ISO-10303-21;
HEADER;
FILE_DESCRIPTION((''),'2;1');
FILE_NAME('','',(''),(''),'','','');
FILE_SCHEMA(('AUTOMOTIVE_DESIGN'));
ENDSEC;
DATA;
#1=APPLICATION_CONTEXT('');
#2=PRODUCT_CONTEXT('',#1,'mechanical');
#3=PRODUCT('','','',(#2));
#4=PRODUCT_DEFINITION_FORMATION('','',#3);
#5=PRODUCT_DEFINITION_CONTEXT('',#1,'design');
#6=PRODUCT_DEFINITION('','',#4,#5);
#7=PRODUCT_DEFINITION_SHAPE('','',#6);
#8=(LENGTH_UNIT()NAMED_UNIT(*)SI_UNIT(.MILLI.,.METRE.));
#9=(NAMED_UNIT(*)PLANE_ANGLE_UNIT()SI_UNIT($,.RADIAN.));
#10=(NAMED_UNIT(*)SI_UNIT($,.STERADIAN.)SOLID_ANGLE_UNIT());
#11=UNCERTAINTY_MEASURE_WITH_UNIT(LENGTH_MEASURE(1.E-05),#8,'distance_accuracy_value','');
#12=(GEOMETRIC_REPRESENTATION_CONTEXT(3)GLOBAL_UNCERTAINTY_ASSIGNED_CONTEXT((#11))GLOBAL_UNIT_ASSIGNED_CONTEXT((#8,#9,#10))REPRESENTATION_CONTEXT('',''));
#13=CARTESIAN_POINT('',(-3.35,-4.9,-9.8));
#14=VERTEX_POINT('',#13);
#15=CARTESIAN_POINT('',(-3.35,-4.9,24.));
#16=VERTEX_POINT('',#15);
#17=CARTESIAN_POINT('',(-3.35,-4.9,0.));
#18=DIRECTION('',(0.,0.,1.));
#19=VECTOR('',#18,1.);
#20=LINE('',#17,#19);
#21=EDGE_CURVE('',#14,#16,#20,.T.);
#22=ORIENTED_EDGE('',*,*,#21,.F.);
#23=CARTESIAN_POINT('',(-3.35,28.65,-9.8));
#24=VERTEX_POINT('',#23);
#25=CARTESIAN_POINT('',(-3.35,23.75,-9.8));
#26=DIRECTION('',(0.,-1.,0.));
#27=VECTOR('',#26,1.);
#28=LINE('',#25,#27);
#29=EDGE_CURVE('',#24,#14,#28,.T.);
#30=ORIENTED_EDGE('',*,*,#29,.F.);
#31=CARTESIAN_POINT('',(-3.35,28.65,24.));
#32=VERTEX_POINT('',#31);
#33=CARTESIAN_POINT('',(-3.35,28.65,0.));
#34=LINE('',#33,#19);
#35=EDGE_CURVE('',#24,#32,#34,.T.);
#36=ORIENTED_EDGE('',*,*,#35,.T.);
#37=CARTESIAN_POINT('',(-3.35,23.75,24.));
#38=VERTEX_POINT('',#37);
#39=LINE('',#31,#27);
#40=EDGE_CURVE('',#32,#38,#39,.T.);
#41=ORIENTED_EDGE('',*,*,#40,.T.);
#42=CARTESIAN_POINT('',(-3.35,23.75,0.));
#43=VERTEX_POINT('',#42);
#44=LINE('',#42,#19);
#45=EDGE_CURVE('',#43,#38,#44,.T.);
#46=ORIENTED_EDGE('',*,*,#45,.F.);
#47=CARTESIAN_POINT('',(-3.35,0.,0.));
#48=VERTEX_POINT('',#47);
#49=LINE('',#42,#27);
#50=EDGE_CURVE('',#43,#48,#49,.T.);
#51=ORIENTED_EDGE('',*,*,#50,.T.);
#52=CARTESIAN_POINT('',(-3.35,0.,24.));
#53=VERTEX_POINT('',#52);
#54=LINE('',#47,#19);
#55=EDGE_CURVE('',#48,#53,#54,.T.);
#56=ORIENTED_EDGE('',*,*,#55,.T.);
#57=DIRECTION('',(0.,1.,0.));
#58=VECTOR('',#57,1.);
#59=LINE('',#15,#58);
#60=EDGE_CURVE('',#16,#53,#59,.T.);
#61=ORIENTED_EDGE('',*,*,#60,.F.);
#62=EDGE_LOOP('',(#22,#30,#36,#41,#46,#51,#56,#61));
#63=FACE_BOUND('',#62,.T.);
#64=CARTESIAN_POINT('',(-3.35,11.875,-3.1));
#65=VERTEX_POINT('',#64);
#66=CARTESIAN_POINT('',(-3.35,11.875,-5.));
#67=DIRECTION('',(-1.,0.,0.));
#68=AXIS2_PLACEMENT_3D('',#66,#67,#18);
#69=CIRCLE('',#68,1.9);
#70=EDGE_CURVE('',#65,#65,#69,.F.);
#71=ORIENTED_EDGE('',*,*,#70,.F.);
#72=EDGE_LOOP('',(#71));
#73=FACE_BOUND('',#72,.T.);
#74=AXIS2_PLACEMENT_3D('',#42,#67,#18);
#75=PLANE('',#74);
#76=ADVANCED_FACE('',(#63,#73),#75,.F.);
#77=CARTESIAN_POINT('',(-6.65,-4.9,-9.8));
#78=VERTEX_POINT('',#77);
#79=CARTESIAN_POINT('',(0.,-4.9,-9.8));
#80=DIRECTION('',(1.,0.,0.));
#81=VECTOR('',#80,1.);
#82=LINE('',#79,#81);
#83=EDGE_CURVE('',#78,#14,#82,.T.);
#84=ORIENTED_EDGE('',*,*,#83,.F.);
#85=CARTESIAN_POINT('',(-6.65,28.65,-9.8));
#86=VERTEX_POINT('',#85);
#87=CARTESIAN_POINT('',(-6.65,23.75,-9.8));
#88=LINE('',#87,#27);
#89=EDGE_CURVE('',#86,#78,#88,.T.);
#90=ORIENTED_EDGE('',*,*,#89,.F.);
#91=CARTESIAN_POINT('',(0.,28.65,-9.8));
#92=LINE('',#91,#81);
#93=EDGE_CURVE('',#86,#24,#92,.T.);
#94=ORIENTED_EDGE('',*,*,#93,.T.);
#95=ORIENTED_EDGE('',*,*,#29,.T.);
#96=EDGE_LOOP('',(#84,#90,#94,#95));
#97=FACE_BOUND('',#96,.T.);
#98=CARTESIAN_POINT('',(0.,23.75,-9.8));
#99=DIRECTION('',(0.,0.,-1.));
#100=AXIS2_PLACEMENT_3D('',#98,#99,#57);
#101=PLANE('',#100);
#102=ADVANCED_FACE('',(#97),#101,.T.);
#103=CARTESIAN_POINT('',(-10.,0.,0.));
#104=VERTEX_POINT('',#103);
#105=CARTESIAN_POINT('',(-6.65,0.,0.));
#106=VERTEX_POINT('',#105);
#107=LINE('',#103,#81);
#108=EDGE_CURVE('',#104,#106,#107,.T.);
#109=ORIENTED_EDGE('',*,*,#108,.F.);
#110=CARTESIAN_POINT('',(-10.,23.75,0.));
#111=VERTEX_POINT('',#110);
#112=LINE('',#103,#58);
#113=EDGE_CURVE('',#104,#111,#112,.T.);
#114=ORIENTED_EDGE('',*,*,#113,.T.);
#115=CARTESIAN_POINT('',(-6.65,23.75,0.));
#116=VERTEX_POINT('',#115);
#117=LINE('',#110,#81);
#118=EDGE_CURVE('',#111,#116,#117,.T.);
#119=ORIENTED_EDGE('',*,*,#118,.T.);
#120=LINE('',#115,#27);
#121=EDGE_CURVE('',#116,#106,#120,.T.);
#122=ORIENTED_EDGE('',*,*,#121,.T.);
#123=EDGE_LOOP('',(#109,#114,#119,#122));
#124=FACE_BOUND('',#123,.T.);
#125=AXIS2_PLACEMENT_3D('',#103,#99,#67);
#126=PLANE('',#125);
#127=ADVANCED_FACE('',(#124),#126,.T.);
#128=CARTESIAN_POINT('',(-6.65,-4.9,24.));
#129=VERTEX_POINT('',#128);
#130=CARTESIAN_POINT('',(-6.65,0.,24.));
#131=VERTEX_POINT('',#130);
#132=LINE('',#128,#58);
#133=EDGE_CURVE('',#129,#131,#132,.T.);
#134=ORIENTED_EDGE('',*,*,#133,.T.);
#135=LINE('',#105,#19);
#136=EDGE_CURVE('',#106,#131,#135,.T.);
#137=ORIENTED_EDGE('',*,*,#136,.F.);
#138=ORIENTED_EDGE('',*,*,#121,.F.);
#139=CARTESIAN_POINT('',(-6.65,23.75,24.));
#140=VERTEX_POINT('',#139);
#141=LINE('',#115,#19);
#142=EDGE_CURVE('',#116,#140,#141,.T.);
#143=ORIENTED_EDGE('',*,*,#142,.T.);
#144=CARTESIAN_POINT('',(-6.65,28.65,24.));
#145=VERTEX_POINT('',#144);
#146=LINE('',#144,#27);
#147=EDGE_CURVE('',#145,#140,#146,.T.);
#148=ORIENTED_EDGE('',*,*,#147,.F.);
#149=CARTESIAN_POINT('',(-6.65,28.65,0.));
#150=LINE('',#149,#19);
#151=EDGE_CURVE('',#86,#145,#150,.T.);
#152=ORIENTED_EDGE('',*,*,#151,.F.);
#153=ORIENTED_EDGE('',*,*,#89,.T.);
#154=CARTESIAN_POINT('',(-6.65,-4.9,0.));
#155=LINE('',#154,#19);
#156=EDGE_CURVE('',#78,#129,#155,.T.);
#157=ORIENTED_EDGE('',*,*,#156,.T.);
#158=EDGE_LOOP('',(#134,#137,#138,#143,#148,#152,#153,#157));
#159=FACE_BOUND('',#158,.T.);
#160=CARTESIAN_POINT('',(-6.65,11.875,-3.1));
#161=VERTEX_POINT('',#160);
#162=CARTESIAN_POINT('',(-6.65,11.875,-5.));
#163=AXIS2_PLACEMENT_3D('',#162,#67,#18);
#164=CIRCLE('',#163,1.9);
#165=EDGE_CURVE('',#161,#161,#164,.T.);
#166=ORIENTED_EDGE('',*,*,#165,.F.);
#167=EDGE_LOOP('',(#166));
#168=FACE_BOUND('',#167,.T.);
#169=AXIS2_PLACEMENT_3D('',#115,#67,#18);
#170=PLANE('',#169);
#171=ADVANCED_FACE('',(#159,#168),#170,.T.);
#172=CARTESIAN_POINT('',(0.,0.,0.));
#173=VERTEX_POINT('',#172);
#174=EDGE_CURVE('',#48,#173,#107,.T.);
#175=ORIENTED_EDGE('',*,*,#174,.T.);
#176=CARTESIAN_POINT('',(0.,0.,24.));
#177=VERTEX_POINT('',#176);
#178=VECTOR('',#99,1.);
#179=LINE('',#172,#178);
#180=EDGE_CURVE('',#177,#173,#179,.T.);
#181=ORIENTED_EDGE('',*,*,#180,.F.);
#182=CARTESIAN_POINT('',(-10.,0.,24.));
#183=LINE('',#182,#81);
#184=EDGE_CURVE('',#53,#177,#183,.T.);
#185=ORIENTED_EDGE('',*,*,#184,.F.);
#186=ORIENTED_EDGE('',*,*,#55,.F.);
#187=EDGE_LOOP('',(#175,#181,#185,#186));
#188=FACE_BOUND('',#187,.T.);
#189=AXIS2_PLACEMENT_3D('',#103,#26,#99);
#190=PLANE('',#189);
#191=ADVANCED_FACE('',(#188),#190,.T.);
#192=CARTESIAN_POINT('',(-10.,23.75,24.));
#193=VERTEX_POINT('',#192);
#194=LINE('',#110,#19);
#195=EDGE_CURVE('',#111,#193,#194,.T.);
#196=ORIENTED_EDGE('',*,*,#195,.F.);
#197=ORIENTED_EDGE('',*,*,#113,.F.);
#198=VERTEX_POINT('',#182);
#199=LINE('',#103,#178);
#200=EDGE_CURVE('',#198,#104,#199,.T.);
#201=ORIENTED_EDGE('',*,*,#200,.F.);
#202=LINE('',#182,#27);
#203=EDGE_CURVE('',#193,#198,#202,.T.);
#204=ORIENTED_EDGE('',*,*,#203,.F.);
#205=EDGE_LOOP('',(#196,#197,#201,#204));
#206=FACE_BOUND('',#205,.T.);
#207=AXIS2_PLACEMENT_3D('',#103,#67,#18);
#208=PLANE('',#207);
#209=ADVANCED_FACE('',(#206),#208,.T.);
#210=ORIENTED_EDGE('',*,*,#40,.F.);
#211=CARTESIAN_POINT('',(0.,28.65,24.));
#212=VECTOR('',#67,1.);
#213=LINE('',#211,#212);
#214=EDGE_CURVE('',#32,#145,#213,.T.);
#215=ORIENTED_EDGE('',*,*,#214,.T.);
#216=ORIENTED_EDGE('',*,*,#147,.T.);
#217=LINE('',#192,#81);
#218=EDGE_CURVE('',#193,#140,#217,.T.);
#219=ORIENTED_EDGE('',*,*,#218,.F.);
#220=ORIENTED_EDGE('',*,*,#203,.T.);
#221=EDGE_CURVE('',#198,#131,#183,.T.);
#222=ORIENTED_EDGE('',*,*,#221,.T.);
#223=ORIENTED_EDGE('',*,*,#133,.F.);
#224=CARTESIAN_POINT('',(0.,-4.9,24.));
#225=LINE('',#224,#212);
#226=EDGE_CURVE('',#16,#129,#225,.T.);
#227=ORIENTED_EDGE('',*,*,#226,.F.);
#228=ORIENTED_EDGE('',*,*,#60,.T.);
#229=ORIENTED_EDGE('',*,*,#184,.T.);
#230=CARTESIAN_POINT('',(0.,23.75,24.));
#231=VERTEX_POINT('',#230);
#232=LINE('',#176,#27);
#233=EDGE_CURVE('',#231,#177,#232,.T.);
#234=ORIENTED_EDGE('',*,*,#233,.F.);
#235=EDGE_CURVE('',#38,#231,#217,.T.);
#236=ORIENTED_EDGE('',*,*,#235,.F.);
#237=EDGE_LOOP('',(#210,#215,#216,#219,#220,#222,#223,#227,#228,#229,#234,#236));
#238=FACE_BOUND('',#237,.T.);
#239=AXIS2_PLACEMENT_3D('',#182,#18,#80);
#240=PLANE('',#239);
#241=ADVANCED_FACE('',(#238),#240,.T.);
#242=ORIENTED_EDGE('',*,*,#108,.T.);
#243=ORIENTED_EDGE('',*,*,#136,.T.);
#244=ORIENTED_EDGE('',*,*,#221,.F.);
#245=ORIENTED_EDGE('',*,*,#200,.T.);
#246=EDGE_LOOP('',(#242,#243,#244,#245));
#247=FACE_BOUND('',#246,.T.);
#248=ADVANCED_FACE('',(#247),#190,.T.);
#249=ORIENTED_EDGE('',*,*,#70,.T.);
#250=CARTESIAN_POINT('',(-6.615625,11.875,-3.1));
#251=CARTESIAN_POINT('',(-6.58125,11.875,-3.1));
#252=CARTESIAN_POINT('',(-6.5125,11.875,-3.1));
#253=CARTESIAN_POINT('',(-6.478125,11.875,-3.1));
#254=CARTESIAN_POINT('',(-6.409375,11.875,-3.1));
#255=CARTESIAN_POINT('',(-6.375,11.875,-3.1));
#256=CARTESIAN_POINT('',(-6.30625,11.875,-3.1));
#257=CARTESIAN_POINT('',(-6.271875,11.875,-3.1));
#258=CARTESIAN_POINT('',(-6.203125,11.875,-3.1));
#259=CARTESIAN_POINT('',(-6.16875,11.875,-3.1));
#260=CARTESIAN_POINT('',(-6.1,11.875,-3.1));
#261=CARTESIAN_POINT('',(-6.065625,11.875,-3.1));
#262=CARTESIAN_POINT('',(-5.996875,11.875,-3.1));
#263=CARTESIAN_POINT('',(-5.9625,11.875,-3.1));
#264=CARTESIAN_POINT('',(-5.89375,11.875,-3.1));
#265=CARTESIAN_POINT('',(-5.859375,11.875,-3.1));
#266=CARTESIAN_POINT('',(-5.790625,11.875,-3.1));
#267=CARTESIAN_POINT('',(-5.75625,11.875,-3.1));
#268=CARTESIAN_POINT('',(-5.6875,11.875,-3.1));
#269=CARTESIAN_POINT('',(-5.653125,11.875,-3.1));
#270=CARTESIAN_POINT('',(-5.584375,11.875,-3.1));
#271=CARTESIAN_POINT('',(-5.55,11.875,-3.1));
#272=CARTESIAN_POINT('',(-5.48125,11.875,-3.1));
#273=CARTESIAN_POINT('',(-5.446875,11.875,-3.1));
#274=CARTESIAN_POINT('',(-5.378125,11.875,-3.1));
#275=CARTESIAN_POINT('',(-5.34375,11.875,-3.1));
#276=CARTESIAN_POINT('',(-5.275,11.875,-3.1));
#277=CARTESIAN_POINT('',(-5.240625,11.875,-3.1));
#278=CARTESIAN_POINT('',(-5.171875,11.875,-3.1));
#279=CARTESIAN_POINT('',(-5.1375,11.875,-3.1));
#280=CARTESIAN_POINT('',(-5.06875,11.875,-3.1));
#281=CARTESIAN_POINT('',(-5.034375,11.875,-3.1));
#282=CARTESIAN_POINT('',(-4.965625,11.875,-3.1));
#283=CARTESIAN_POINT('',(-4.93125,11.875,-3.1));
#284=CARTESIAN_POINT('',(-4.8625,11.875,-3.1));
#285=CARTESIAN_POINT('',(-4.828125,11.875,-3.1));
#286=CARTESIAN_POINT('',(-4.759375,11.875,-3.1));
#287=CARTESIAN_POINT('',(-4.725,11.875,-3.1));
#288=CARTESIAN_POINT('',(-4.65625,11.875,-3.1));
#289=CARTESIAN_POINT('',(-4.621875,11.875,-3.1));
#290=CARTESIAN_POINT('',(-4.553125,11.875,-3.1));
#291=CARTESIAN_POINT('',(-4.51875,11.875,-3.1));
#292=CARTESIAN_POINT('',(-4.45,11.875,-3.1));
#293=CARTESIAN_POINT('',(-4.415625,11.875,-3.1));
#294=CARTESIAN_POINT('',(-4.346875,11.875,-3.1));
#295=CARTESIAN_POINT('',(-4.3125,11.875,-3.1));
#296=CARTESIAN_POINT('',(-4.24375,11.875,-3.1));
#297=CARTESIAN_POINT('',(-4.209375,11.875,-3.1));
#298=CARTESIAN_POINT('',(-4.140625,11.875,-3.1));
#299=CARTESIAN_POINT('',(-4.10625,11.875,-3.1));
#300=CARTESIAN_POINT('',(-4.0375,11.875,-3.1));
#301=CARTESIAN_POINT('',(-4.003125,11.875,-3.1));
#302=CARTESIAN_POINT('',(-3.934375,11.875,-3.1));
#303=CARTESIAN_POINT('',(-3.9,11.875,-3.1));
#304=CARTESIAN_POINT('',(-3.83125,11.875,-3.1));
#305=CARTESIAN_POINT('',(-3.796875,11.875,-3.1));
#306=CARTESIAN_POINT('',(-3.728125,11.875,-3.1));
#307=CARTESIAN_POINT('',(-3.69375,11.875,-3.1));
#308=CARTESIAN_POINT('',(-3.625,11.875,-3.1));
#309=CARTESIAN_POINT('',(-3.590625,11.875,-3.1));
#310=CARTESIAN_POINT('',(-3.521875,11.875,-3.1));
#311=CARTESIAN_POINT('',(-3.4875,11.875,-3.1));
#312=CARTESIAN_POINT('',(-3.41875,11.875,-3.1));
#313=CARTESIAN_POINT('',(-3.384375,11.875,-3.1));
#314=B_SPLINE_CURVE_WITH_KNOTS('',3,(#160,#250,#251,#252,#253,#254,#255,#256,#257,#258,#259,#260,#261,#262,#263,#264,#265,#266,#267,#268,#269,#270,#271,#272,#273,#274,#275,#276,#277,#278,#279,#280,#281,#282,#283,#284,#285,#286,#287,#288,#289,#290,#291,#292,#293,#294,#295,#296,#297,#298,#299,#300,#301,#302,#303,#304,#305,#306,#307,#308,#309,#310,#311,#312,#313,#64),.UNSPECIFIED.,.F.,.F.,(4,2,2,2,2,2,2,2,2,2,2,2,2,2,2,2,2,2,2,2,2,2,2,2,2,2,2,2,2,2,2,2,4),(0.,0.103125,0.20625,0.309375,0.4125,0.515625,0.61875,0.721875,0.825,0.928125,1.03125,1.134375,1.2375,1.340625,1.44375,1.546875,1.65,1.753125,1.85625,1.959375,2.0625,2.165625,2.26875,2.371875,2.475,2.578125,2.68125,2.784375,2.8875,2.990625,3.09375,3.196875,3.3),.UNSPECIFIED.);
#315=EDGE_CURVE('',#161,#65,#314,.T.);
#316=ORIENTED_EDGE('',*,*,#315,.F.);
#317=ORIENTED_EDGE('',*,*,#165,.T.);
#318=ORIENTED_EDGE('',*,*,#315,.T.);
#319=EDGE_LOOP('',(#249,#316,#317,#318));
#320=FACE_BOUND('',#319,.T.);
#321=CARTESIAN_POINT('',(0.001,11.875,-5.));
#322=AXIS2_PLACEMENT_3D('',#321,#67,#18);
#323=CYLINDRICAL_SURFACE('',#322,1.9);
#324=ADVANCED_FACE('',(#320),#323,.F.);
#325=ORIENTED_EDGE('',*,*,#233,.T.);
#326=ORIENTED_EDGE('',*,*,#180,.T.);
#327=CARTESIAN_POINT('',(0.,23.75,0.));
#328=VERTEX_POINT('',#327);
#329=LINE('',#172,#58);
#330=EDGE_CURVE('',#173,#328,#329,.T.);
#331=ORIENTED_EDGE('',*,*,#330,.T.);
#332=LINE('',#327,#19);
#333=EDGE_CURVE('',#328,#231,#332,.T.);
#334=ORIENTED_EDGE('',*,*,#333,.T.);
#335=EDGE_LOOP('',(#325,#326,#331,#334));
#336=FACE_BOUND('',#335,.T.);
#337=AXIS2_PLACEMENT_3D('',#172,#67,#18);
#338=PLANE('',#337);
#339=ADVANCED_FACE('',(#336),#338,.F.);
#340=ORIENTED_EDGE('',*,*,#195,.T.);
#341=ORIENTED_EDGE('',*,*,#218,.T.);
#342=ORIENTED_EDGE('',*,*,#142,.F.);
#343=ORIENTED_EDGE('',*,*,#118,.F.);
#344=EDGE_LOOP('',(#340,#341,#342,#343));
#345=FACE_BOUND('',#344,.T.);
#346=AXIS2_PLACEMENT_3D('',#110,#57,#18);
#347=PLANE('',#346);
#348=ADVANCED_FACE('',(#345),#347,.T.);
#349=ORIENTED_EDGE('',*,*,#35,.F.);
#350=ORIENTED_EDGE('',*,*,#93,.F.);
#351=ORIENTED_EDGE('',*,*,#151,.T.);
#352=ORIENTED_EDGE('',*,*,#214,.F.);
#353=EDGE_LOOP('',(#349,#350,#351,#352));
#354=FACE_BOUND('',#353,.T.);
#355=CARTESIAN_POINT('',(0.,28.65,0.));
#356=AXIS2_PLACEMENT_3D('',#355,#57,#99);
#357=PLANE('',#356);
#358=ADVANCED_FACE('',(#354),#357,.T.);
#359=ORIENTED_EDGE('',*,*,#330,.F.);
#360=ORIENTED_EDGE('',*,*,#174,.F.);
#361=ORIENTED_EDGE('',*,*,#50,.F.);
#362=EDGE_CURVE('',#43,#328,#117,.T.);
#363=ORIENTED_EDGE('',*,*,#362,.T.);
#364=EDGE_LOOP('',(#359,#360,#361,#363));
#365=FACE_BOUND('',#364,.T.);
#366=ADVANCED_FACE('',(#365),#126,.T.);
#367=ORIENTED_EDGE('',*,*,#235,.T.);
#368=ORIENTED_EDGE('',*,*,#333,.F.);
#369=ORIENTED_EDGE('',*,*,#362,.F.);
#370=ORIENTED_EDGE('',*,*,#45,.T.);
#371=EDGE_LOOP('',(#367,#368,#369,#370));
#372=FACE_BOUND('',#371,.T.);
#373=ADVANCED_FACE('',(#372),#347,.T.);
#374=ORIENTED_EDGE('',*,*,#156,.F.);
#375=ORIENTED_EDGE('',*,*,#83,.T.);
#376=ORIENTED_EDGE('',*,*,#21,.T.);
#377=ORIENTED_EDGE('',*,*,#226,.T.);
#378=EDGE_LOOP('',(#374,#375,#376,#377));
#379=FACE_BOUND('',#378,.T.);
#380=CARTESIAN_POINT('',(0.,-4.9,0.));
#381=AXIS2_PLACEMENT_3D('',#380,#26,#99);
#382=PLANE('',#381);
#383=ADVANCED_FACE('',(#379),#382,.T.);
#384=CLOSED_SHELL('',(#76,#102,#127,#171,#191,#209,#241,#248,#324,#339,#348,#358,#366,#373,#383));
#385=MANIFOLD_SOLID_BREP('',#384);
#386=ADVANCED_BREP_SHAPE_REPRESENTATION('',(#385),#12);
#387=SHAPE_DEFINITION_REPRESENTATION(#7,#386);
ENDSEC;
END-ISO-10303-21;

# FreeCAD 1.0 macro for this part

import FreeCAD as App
import Part
import Sketcher
Q = App.Units.Quantity

doc = App.newDocument("Part")
params = doc.addObject("Spreadsheet::Sheet", "Params")
for row, (alias, value) in enumerate([
    ("sketch1_height", "24 mm"),
    ("sketch1_width", "23.75 mm"),
    ("pad1_length", "10 mm"),
    ("sketch2_width", "3.3 mm"),
    ("sketch2_height", "9.8 mm"),
    ("pad2_length", "23.75 mm"),
    ("sketch3_width", "3.3 mm"),
    ("sketch3_height", "33.8 mm"),
    ("pad3_length", "4.9 mm"),
    ("sketch4_diameter", "3.8 mm"),
], start=1):
    params.set(f"A{row}", alias)
    params.set(f"B{row}", "=" + value)
    params.setAlias(f"B{row}", alias)

body = doc.addObject("PartDesign::Body", "Body")

# Sketch on YZ plane
sketch1 = body.newObject("Sketcher::SketchObject", "Sketch")
sketch1.AttachmentSupport = (doc.getObject("YZ_Plane"), [""])
sketch1.MapMode = "FlatFace"
sketch1.addGeometry([
    Part.LineSegment(App.Vector(0, 24, 0), App.Vector(0, 0, 0)),
    Part.LineSegment(App.Vector(0, 0, 0), App.Vector(24, 0, 0)),
    Part.LineSegment(App.Vector(24, 0, 0), App.Vector(24, 24, 0)),
    Part.LineSegment(App.Vector(24, 24, 0), App.Vector(0, 24, 0)),
], False)
sketch1.addConstraint([
    Sketcher.Constraint("Coincident", 0, 2, 1, 1),
    Sketcher.Constraint("Coincident", 1, 2, 2, 1),
    Sketcher.Constraint("Coincident", 2, 2, 3, 1),
    Sketcher.Constraint("Coincident", 3, 2, 0, 1),
    Sketcher.Constraint("Vertical", 0),
    Sketcher.Constraint("Horizontal", 1),
    Sketcher.Constraint("Vertical", 2),
    Sketcher.Constraint("Horizontal", 3),
    Sketcher.Constraint("Coincident", 0, 2, -1, 1),
    Sketcher.Constraint("DistanceY", 0, 2, 0, 1, Q("24 mm")),
    Sketcher.Constraint("DistanceX", 1, 1, 1, 2, Q("23.75 mm")),
])
sketch1.setExpression("Constraints[9]", "Params.sketch1_height")
sketch1.setExpression("Constraints[10]", "Params.sketch1_width")
pad1 = body.newObject("PartDesign::Pad", "Pad")
pad1.Profile = sketch1
pad1.setExpression("Length", "Params.pad1_length")
pad1.Reversed = True

# Sketch on XZ plane
sketch2 = body.newObject("Sketcher::SketchObject", "Sketch001")
sketch2.AttachmentSupport = (doc.getObject("XZ_Plane"), [""])
sketch2.MapMode = "FlatFace"
sketch2.addGeometry([
    Part.LineSegment(App.Vector(-6.7, 0, 0), App.Vector(-6.7, -9.8, 0)),
    Part.LineSegment(App.Vector(-6.7, -9.8, 0), App.Vector(-3.4, -9.8, 0)),
    Part.LineSegment(App.Vector(-3.4, -9.8, 0), App.Vector(-3.4, 0, 0)),
    Part.LineSegment(App.Vector(-3.4, 0, 0), App.Vector(-6.7, 0, 0)),
], False)
sketch2.addConstraint([
    Sketcher.Constraint("Coincident", 0, 2, 1, 1),
    Sketcher.Constraint("Coincident", 1, 2, 2, 1),
    Sketcher.Constraint("Coincident", 2, 2, 3, 1),
    Sketcher.Constraint("Coincident", 3, 2, 0, 1),
    Sketcher.Constraint("Vertical", 0),
    Sketcher.Constraint("Horizontal", 1),
    Sketcher.Constraint("Vertical", 2),
    Sketcher.Constraint("Horizontal", 3),
    Sketcher.Constraint("PointOnObject", 2, 2, -1),
    Sketcher.Constraint("DistanceX", 1, 1, 1, 2, Q("3.3 mm")),
    Sketcher.Constraint("DistanceY", 0, 2, 0, 1, Q("9.8 mm")),
    Sketcher.Constraint("DistanceX", 0, 2, -1, 1, Q("6.65 mm")),
])
sketch2.setExpression("Constraints[9]", "Params.sketch2_width")
sketch2.setExpression("Constraints[10]", "Params.sketch2_height")
pad2 = body.newObject("PartDesign::Pad", "Pad001")
pad2.Profile = sketch2
pad2.setExpression("Length", "Params.pad2_length")
pad2.Reversed = True

# Sketch on XZ plane
sketch3 = body.newObject("Sketcher::SketchObject", "Sketch002")
sketch3.AttachmentSupport = (doc.getObject("XZ_Plane"), [""])
sketch3.MapMode = "FlatFace"
sketch3.addGeometry([
    Part.LineSegment(App.Vector(-6.7, 24, 0), App.Vector(-6.7, -9.8, 0)),
    Part.LineSegment(App.Vector(-6.7, -9.8, 0), App.Vector(-3.4, -9.8, 0)),
    Part.LineSegment(App.Vector(-3.4, -9.8, 0), App.Vector(-3.4, 24, 0)),
    Part.LineSegment(App.Vector(-3.4, 24, 0), App.Vector(-6.7, 24, 0)),
], False)
sketch3.addConstraint([
    Sketcher.Constraint("Coincident", 0, 2, 1, 1),
    Sketcher.Constraint("Coincident", 1, 2, 2, 1),
    Sketcher.Constraint("Coincident", 2, 2, 3, 1),
    Sketcher.Constraint("Coincident", 3, 2, 0, 1),
    Sketcher.Constraint("Vertical", 0),
    Sketcher.Constraint("Horizontal", 1),
    Sketcher.Constraint("Vertical", 2),
    Sketcher.Constraint("Horizontal", 3),
    Sketcher.Constraint("DistanceX", 1, 1, 1, 2, Q("3.3 mm")),
    Sketcher.Constraint("DistanceY", 0, 2, 0, 1, Q("33.8 mm")),
    Sketcher.Constraint("DistanceY", -1, 1, 2, 2, Q("24 mm")),
    Sketcher.Constraint("DistanceX", 0, 2, -1, 1, Q("6.65 mm")),
])
sketch3.setExpression("Constraints[8]", "Params.sketch3_width")
sketch3.setExpression("Constraints[9]", "Params.sketch3_height")
pad3 = body.newObject("PartDesign::Pad", "Pad002")
pad3.Profile = sketch3
pad3.setExpression("Length", "Params.pad3_length")

# Sketch on YZ plane
sketch4 = body.newObject("Sketcher::SketchObject", "Sketch003")
sketch4.AttachmentSupport = (doc.getObject("YZ_Plane"), [""])
sketch4.MapMode = "FlatFace"
sketch4.AttachmentOffset = App.Placement(App.Vector(0, 0, -6.65), App.Rotation())
sketch4.addGeometry(Part.Circle(App.Vector(11.9, -5, 0), App.Vector(0, 0, 1), 1.9), False)
sketch4.addConstraint([
    Sketcher.Constraint("Diameter", 0, Q("3.8 mm")),
    Sketcher.Constraint("DistanceY", 0, 3, -1, 1, Q("5 mm")),
    Sketcher.Constraint("DistanceX", -1, 1, 0, 3, Q("11.875 mm")),
])
sketch4.setExpression("Constraints[0]", "Params.sketch4_diameter")
pocket1 = body.newObject("PartDesign::Pocket", "Pocket")
pocket1.Profile = sketch4
pocket1.Type = "UpToFirst"
pocket1.Reversed = True
doc.recompute()

datumplane = body.newObject("PartDesign::Plane", "DatumPlane")
datumplane.AttachmentSupport = (doc.getObject("XZ_Plane"), [""])
datumplane.MapMode = "FlatFace"
datumplane.AttachmentOffset = App.Placement(App.Vector(0, 0, -11.875), App.Rotation())
mirrored = body.newObject("PartDesign::Mirrored", "Mirrored")
mirrored.Originals = [pad3]
mirrored.MirrorPlane = (datumplane, [""])
body.Tip = mirrored

doc.recompute()
